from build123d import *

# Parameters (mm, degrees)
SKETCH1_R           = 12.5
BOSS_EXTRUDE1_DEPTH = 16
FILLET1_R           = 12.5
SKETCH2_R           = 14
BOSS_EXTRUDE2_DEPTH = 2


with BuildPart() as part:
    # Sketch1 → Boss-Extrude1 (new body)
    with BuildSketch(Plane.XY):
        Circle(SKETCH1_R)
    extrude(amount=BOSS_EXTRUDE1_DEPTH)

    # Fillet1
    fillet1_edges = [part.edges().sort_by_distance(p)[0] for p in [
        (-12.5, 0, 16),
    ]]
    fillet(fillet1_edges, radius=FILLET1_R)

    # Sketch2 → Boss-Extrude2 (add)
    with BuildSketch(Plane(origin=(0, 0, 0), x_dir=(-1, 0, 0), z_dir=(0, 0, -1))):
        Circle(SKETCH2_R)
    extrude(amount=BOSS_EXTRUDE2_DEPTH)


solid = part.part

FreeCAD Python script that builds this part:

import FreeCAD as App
import Part
import Sketcher


def edges_at(feature, points):
    """Names of the edges that pass closest to the given points."""
    edges = feature.Shape.Edges
    near = lambda p: min(range(len(edges)), key=lambda i: edges[i].distToShape(Part.Vertex(*p))[0])
    return sorted({f"Edge{near(p) + 1}" for p in points})

doc = App.newDocument("Part")
params = doc.addObject("Spreadsheet::Sheet", "Params")
for row, (alias, value) in enumerate([
    ("sketch1_diameter", "25 mm"),
    ("pad1_length", "16 mm"),
    ("fillet_radius", "12.5 mm"),
    ("sketch2_diameter", "28 mm"),
    ("pad2_length", "2 mm"),
], start=1):
    params.set(f"A{row}", alias)
    params.set(f"B{row}", "=" + value)
    params.setAlias(f"B{row}", alias)

body = doc.addObject("PartDesign::Body", "Body")

sketch1 = doc.addObject("Sketcher::SketchObject", "Sketch")
body.addObject(sketch1)
sketch1.AttachmentSupport = (doc.XY_Plane, [""])
sketch1.MapMode = "FlatFace"
sketch1.addGeometry(Part.Circle(App.Vector(0, 0, 0), App.Vector(0, 0, 1), 12.5), False)
sketch1.addConstraint([
    Sketcher.Constraint("Coincident", 0, 3, -1, 1),
    Sketcher.Constraint("Diameter", 0, 25.0),
])
sketch1.setExpression("Constraints[1]", "Params.sketch1_diameter")
pad1 = doc.addObject("PartDesign::Pad", "Pad")
body.addObject(pad1)
pad1.Profile = sketch1
pad1.setExpression("Length", "Params.pad1_length")
doc.recompute()

fillet = doc.addObject("PartDesign::Fillet", "Fillet")
body.addObject(fillet)
fillet.Base = (pad1, edges_at(pad1, [(-12.5, 0, 16)]))
fillet.setExpression("Radius", "Params.fillet_radius")

sketch2 = doc.addObject("Sketcher::SketchObject", "Sketch001")
body.addObject(sketch2)
sketch2.AttachmentSupport = (doc.XY_Plane, [""])
sketch2.MapMode = "FlatFace"
sketch2.addGeometry(Part.Circle(App.Vector(0, 0, 0), App.Vector(0, 0, 1), 14), False)
sketch2.addConstraint([
    Sketcher.Constraint("Coincident", 0, 3, -1, 1),
    Sketcher.Constraint("Diameter", 0, 28.0),
])
sketch2.setExpression("Constraints[1]", "Params.sketch2_diameter")
pad2 = doc.addObject("PartDesign::Pad", "Pad001")
body.addObject(pad2)
pad2.Profile = sketch2
pad2.setExpression("Length", "Params.pad2_length")
pad2.Reversed = True

doc.recompute()
